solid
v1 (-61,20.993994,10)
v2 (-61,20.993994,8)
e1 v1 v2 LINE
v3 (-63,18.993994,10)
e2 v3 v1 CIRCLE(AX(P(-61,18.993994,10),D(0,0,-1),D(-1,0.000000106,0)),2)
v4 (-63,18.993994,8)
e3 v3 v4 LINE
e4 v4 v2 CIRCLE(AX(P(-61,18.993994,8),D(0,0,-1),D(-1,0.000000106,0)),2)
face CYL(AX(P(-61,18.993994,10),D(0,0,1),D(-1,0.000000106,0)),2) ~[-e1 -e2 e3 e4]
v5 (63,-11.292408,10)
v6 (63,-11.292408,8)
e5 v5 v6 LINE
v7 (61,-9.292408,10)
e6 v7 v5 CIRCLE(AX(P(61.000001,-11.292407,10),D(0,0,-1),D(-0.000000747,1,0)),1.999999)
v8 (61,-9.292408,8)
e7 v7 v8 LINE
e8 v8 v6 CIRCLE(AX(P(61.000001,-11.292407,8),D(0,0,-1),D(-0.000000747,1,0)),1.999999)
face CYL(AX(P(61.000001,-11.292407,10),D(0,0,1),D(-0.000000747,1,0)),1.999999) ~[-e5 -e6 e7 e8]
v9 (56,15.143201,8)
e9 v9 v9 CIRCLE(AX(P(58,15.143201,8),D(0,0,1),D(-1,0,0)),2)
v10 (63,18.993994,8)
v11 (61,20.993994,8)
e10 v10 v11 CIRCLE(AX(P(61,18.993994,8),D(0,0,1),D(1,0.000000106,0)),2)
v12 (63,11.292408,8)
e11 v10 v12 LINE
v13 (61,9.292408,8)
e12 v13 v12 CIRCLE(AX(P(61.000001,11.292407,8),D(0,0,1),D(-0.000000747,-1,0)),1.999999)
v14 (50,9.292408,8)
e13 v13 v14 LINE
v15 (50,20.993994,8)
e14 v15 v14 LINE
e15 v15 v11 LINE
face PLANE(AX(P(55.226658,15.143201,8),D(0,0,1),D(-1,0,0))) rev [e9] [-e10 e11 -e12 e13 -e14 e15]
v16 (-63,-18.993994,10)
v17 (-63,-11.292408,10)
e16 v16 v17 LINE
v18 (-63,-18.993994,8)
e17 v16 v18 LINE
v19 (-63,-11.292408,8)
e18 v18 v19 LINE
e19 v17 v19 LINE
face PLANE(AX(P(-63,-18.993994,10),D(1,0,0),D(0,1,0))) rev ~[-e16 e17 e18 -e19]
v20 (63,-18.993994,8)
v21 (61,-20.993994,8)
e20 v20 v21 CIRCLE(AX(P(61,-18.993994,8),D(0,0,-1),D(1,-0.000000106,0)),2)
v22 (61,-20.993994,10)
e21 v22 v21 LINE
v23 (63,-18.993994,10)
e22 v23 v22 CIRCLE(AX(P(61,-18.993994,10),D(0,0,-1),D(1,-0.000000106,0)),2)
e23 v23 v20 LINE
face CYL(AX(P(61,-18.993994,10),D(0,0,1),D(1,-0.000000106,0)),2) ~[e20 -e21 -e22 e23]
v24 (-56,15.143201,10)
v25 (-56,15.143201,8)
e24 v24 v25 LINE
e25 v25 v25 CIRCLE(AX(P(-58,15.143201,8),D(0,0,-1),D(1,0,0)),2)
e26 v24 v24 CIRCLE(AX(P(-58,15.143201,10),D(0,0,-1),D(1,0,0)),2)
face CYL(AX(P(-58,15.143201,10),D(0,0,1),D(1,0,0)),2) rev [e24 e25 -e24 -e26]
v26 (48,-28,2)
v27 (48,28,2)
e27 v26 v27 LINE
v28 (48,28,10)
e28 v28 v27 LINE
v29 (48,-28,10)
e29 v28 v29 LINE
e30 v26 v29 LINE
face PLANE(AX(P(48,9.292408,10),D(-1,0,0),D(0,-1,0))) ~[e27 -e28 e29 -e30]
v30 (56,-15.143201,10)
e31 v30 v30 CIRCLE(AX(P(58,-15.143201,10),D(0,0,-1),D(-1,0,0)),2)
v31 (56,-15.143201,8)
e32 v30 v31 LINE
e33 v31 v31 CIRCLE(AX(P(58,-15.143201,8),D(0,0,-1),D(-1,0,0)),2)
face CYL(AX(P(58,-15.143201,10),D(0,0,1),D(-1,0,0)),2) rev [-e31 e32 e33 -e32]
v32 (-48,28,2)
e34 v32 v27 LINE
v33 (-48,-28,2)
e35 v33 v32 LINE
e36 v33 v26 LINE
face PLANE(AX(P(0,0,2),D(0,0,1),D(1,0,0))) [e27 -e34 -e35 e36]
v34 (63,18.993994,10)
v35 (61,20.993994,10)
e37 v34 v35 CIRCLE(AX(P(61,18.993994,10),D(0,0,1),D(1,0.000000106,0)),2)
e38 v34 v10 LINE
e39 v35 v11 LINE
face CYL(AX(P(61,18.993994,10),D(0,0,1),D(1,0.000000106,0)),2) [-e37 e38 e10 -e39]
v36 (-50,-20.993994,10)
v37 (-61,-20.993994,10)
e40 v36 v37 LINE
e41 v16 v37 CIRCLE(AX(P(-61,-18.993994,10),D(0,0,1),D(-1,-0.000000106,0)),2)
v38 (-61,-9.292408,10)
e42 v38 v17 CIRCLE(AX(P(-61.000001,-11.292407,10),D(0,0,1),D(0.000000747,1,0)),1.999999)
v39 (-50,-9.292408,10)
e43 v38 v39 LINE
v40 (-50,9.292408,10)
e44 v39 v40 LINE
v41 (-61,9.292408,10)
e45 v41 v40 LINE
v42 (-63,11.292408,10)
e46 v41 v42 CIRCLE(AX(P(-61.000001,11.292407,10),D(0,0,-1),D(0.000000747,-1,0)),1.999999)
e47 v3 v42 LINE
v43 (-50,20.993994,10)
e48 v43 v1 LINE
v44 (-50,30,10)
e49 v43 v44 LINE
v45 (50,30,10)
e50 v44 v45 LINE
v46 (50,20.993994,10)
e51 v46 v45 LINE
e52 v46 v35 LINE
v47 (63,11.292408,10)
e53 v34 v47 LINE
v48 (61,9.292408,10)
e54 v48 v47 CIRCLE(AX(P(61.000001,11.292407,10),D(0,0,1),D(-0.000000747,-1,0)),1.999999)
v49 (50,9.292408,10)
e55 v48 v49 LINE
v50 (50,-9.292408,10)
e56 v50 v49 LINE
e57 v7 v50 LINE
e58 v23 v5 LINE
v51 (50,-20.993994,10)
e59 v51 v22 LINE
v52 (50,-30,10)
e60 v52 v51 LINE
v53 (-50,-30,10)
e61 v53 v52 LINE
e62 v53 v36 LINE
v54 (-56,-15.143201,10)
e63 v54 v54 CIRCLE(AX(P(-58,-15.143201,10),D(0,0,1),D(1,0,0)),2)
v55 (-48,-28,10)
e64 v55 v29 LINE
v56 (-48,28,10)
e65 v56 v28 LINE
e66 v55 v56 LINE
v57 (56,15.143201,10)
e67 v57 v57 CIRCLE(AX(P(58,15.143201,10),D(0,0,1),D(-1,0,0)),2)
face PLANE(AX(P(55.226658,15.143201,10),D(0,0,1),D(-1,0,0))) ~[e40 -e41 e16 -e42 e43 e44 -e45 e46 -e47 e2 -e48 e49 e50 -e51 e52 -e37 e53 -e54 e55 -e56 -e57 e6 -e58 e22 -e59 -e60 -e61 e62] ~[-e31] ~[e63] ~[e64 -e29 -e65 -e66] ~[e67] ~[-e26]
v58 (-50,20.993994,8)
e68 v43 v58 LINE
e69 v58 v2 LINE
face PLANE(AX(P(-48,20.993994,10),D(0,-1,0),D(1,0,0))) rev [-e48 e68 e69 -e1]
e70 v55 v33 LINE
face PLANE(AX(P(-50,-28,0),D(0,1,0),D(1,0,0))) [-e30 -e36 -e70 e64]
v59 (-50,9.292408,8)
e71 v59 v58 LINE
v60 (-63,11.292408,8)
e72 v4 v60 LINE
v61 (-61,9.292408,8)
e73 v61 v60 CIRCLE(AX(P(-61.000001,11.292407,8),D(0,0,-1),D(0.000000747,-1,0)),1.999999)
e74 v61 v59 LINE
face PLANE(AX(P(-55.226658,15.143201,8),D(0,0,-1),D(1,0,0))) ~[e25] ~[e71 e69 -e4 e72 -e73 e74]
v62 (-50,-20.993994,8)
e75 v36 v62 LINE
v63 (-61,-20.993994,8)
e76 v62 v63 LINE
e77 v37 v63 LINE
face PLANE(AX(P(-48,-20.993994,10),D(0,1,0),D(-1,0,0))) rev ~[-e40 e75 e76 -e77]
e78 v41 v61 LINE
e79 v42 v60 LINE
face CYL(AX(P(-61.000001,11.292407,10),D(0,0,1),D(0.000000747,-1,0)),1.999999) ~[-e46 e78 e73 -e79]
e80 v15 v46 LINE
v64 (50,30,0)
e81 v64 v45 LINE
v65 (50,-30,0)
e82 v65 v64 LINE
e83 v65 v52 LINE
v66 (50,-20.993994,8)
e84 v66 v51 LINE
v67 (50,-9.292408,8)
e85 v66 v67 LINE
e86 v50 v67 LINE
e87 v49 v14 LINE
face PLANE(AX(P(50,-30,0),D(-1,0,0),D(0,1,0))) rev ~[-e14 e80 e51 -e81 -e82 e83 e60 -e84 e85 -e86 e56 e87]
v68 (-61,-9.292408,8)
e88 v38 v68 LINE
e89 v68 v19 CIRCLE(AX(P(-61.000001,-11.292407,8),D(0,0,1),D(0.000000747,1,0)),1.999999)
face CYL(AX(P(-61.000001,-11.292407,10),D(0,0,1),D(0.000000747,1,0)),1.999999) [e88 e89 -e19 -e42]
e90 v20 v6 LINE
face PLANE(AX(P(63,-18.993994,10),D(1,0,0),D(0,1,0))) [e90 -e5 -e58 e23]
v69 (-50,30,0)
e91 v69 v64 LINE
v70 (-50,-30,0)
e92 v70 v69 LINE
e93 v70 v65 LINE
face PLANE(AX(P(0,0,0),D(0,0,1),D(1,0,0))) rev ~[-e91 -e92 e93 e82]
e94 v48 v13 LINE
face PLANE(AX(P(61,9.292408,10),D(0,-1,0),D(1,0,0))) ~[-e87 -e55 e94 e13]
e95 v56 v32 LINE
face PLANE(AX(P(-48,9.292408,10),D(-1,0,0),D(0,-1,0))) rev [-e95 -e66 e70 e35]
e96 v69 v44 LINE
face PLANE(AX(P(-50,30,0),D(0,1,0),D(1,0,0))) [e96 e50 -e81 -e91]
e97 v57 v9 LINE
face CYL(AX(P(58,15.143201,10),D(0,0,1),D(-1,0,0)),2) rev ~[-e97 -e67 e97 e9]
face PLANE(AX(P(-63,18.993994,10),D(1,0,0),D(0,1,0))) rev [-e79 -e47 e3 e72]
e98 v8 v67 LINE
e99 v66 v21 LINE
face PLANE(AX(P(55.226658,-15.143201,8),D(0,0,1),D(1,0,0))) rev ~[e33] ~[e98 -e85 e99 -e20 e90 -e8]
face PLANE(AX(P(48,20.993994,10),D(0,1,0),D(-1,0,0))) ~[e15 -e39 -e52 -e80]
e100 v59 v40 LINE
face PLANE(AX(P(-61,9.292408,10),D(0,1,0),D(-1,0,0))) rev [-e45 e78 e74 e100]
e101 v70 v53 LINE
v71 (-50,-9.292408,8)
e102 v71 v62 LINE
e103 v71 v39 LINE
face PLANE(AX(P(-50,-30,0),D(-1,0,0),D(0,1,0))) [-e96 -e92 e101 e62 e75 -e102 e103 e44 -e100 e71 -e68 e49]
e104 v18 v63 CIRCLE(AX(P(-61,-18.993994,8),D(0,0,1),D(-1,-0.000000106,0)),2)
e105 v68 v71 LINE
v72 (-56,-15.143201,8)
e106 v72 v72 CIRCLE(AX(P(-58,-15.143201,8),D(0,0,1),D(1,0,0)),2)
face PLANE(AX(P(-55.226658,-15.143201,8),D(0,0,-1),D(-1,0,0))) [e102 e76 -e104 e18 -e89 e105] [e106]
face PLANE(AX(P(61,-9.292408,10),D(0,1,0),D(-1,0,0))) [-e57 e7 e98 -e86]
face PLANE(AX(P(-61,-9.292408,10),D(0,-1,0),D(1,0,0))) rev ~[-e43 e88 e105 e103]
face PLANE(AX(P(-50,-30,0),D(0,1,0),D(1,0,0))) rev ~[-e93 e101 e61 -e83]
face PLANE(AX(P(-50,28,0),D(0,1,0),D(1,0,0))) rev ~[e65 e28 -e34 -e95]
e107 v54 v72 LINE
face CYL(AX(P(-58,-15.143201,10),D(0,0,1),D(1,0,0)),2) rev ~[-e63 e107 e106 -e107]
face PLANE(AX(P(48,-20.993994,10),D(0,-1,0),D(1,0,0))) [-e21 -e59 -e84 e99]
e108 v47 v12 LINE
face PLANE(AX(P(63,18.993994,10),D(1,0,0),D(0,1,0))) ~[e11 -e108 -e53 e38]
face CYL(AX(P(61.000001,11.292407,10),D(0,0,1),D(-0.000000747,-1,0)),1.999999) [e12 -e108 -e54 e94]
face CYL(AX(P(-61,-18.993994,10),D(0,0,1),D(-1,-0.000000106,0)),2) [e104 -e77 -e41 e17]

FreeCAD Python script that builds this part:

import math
import FreeCAD as App
import Part
import Sketcher

V = App.Vector
Q = App.Units.Quantity


def faces_at(feature, points):
    """Names of the faces that lie closest to the given points."""
    faces = feature.Shape.Faces
    near = lambda p: min(range(len(faces)), key=lambda i: faces[i].distToShape(Part.Vertex(*p))[0])
    return sorted({f"Face{near(p) + 1}" for p in points})


def add_polygon(sketch, points):
    """Adds a closed chain of lines whose ends are joined by coincident constraints."""
    first, n = sketch.GeometryCount, len(points)
    for a, b in zip(points, points[1:] + points[:1]):
        sketch.addGeometry(Part.LineSegment(App.Vector(*a, 0), App.Vector(*b, 0)), False)
    for i in range(n):
        sketch.addConstraint(Sketcher.Constraint("Coincident", first + i, 2, first + (i + 1) % n, 1))

doc = App.newDocument("Part")
body = doc.addObject("PartDesign::Body", "Body")

sketch1 = body.newObject("Sketcher::SketchObject", "Sketch")
sketch1.AttachmentSupport = (doc.getObject("XY_Plane"), [""])
sketch1.MapMode = "FlatFace"
add_polygon(sketch1, [(-50, 30), (-50, -30), (50, -30), (50, 30)])
sketch1.addConstraint(Sketcher.Constraint("Vertical", 0))
sketch1.addConstraint(Sketcher.Constraint("Horizontal", 1))
sketch1.addConstraint(Sketcher.Constraint("Vertical", 2))
sketch1.addConstraint(Sketcher.Constraint("Horizontal", 3))
sketch1.addConstraint(Sketcher.Constraint("Symmetric", 0, 2, 2, 2, -1, 1))
sketch1.addConstraint(Sketcher.Constraint("DistanceX", 1, 1, 1, 2, Q("100 mm")))
sketch1.addConstraint(Sketcher.Constraint("DistanceY", 0, 2, 0, 1, Q("60 mm")))
pad1 = body.newObject("PartDesign::Pad", "Pad")
pad1.Profile = sketch1
pad1.Length = 10
doc.recompute()

thickness = body.newObject("PartDesign::Thickness", "Thickness")
thickness.Base = (pad1, faces_at(pad1, [(0, 0, 10)]))
thickness.Value = 2
thickness.Reversed = True
thickness.Join = "Arc"

sketch2 = body.newObject("Sketcher::SketchObject", "Sketch001")
sketch2.AttachmentSupport = (doc.getObject("XY_Plane"), [""])
sketch2.MapMode = "FlatFace"
sketch2.AttachmentOffset = App.Placement(V(0, 0, 10), App.Rotation())
sketch2.addGeometry(Part.LineSegment(V(-48, -9.292408, 0), V(-61, -9.292408, 0)), False)
sketch2.addGeometry(Part.ArcOfCircle(Part.Circle(V(-61.000001, -11.292407, 0), V(0, 0, 1), 1.999999), math.radians(89.999957), math.radians(180.000043)), False)
sketch2.addGeometry(Part.LineSegment(V(-63, -11.292408, 0), V(-63, -18.993994, 0)), False)
sketch2.addGeometry(Part.ArcOfCircle(Part.Circle(V(-61, -18.993994, 0), V(0, 0, 1), 2), math.radians(-179.999994), math.radians(-90.000006)), False)
sketch2.addGeometry(Part.LineSegment(V(-61, -20.993994, 0), V(-48, -20.993994, 0)), False)
sketch2.addGeometry(Part.LineSegment(V(-48, -20.993994, 0), V(-48, -9.292408, 0)), False)
sketch2.addGeometry(Part.Circle(V(-58, -15.143201, 0), V(0, 0, 1), 2), False)
sketch2.addConstraint(Sketcher.Constraint("Tangent", 0, 2, 1, 1))
sketch2.addConstraint(Sketcher.Constraint("Tangent", 1, 2, 2, 1))
sketch2.addConstraint(Sketcher.Constraint("Tangent", 2, 2, 3, 1))
sketch2.addConstraint(Sketcher.Constraint("Tangent", 3, 2, 4, 1))
sketch2.addConstraint(Sketcher.Constraint("Coincident", 4, 2, 5, 1))
sketch2.addConstraint(Sketcher.Constraint("Coincident", 5, 2, 0, 1))
sketch2.addConstraint(Sketcher.Constraint("Horizontal", 0))
sketch2.addConstraint(Sketcher.Constraint("Vertical", 2))
sketch2.addConstraint(Sketcher.Constraint("Horizontal", 4))
sketch2.addConstraint(Sketcher.Constraint("Vertical", 5))
sketch2.addConstraint(Sketcher.Constraint("Equal", 1, 3))
sketch2.addConstraint(Sketcher.Constraint("Equal", 3, 6))
sketch2.addConstraint(Sketcher.Constraint("Diameter", 6, Q("4 mm")))
sketch2.addConstraint(Sketcher.Constraint("DistanceX", 0, 2, 0, 1, Q("13 mm")))
sketch2.addConstraint(Sketcher.Constraint("DistanceX", 1, 3, -1, 1, Q("61.000001 mm")))
sketch2.addConstraint(Sketcher.Constraint("DistanceX", 6, 3, -1, 1, Q("58 mm")))
sketch2.addConstraint(Sketcher.Constraint("DistanceY", 6, 3, -1, 1, Q("15.143201 mm")))
sketch2.addConstraint(Sketcher.Constraint("DistanceY", 2, 2, 2, 1, Q("7.701586 mm")))
sketch2.addConstraint(Sketcher.Constraint("DistanceY", 1, 3, -1, 1, Q("11.292407 mm")))
pad2 = body.newObject("PartDesign::Pad", "Pad001")
pad2.Profile = sketch2
pad2.Length = 2
pad2.Reversed = True

sketch3 = body.newObject("Sketcher::SketchObject", "Sketch002")
sketch3.AttachmentSupport = (doc.getObject("XY_Plane"), [""])
sketch3.MapMode = "FlatFace"
sketch3.AttachmentOffset = App.Placement(V(0, 0, 10), App.Rotation())
sketch3.addGeometry(Part.LineSegment(V(48, -9.292408, 0), V(61, -9.292408, 0)), False)
sketch3.addGeometry(Part.ArcOfCircle(Part.Circle(V(61.000001, -11.292407, 0), V(0, 0, 1), 1.999999), math.radians(-0.000043), math.radians(90.000043)), False)
sketch3.addGeometry(Part.LineSegment(V(63, -11.292408, 0), V(63, -18.993994, 0)), False)
sketch3.addGeometry(Part.ArcOfCircle(Part.Circle(V(61, -18.993994, 0), V(0, 0, 1), 2), math.radians(-89.999994), math.radians(-0.000006)), False)
sketch3.addGeometry(Part.LineSegment(V(61, -20.993994, 0), V(48, -20.993994, 0)), False)
sketch3.addGeometry(Part.LineSegment(V(48, -20.993994, 0), V(48, -9.292408, 0)), False)
sketch3.addGeometry(Part.Circle(V(58, -15.143201, 0), V(0, 0, 1), 2), False)
sketch3.addConstraint(Sketcher.Constraint("Tangent", 0, 2, 1, 2))
sketch3.addConstraint(Sketcher.Constraint("Tangent", 1, 1, 2, 1))
sketch3.addConstraint(Sketcher.Constraint("Tangent", 2, 2, 3, 2))
sketch3.addConstraint(Sketcher.Constraint("Tangent", 3, 1, 4, 1))
sketch3.addConstraint(Sketcher.Constraint("Coincident", 4, 2, 5, 1))
sketch3.addConstraint(Sketcher.Constraint("Coincident", 5, 2, 0, 1))
sketch3.addConstraint(Sketcher.Constraint("Horizontal", 0))
sketch3.addConstraint(Sketcher.Constraint("Vertical", 2))
sketch3.addConstraint(Sketcher.Constraint("Horizontal", 4))
sketch3.addConstraint(Sketcher.Constraint("Vertical", 5))
sketch3.addConstraint(Sketcher.Constraint("Equal", 1, 3))
sketch3.addConstraint(Sketcher.Constraint("Equal", 3, 6))
sketch3.addConstraint(Sketcher.Constraint("Diameter", 6, Q("4 mm")))
sketch3.addConstraint(Sketcher.Constraint("DistanceX", 0, 1, 0, 2, Q("13 mm")))
sketch3.addConstraint(Sketcher.Constraint("DistanceX", -1, 1, 1, 3, Q("61.000001 mm")))
sketch3.addConstraint(Sketcher.Constraint("DistanceX", -1, 1, 6, 3, Q("58 mm")))
sketch3.addConstraint(Sketcher.Constraint("DistanceY", 6, 3, -1, 1, Q("15.143201 mm")))
sketch3.addConstraint(Sketcher.Constraint("DistanceY", 2, 2, 2, 1, Q("7.701586 mm")))
sketch3.addConstraint(Sketcher.Constraint("DistanceY", 1, 3, -1, 1, Q("11.292407 mm")))
pad3 = body.newObject("PartDesign::Pad", "Pad002")
pad3.Profile = sketch3
pad3.Length = 2
pad3.Reversed = True
doc.recompute()

mirrored = body.newObject("PartDesign::Mirrored", "Mirrored")
mirrored.Originals = [pad2, pad3]
mirrored.MirrorPlane = (doc.getObject("XZ_Plane"), [""])
body.Tip = mirrored

doc.recompute()
